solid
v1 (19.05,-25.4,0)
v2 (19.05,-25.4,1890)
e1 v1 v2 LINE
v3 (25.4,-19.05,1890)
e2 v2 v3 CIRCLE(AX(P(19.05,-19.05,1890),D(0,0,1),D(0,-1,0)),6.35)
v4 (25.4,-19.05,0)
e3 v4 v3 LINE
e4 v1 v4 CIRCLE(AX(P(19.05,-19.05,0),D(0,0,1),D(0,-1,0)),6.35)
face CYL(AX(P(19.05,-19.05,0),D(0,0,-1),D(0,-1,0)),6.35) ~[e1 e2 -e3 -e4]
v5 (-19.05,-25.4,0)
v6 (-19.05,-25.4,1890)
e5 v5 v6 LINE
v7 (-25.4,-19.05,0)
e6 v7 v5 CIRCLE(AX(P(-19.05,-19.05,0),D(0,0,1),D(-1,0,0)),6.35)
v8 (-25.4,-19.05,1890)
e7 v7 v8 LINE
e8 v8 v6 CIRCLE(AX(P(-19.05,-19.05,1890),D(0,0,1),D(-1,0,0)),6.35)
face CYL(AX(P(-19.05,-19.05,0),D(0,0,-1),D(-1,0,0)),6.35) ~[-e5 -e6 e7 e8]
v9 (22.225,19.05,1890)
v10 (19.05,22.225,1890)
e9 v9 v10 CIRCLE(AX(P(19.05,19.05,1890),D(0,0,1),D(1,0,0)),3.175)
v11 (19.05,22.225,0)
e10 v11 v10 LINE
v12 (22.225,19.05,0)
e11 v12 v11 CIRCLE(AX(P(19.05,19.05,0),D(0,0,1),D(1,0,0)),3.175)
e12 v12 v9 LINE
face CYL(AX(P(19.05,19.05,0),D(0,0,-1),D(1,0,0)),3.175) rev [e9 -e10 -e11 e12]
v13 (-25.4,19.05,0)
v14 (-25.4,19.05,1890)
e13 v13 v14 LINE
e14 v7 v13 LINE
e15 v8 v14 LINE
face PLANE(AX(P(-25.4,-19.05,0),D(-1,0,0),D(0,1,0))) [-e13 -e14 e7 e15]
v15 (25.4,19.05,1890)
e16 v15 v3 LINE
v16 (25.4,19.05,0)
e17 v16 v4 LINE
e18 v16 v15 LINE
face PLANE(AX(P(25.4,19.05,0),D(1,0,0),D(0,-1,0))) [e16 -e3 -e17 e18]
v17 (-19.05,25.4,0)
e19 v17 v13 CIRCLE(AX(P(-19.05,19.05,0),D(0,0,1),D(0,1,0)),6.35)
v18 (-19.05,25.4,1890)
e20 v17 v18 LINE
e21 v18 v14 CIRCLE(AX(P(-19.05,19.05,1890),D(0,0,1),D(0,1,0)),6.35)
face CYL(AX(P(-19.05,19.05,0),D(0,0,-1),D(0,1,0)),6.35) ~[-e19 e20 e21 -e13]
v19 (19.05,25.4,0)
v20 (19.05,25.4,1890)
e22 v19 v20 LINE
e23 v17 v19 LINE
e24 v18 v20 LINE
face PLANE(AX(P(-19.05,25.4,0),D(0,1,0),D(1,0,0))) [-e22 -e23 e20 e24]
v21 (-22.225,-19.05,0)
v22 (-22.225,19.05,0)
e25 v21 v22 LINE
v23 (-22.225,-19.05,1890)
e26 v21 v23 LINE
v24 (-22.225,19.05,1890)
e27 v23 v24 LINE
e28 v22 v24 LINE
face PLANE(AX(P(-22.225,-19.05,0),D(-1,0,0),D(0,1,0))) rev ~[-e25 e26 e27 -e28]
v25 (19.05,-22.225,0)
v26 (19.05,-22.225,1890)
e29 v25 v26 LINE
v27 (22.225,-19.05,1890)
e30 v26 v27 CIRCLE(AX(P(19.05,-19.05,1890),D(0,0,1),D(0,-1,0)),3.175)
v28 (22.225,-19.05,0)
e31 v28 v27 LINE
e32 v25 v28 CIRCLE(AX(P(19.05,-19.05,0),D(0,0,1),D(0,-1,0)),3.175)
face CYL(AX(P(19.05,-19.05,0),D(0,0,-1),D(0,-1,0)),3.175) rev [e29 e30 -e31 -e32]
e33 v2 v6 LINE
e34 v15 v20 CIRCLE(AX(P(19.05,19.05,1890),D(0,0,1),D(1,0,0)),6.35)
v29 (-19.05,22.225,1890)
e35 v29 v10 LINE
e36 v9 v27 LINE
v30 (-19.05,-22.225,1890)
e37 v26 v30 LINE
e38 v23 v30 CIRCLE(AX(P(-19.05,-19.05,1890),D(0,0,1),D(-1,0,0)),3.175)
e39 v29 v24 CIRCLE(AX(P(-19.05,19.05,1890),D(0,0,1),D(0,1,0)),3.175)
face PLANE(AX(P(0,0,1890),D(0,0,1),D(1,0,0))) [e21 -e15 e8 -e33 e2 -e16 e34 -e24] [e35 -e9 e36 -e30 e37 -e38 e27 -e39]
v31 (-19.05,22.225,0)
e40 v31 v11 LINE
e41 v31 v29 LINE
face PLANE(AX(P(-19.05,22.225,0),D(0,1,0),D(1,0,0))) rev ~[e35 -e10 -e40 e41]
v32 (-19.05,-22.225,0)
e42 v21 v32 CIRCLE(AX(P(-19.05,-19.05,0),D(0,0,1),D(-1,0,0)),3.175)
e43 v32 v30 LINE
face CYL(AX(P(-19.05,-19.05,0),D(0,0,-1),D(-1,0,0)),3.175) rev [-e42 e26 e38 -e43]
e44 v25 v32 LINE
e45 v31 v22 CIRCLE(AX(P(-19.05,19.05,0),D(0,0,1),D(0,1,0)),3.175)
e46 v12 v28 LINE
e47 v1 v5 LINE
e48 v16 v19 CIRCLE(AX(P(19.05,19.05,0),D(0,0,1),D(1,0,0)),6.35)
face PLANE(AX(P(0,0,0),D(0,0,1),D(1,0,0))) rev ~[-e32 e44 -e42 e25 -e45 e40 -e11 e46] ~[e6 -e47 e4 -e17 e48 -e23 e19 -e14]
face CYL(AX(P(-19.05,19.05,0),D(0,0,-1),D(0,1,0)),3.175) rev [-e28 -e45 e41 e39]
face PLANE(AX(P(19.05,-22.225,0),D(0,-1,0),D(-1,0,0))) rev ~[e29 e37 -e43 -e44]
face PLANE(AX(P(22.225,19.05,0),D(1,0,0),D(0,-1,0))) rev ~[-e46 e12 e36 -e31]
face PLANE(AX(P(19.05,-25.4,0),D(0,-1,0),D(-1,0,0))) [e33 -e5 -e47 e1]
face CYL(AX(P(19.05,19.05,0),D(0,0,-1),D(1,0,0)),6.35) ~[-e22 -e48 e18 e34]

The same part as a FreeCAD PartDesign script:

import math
import FreeCAD as App
import Part
import Sketcher

V = App.Vector
Q = App.Units.Quantity

doc = App.newDocument("Part")
body = doc.addObject("PartDesign::Body", "Body")

sketch1 = doc.addObject("Sketcher::SketchObject", "Sketch")
body.addObject(sketch1)
sketch1.AttachmentSupport = (doc.XY_Plane, [""])
sketch1.MapMode = "FlatFace"
sketch1.addGeometry([
    Part.LineSegment(V(-25.4, 19.1, 0), V(-25.4, -19.1, 0)),
    Part.ArcOfCircle(Part.Circle(V(-19.1, -19.1, 0), V(0, 0, 1), 6.3), math.radians(180), math.radians(270)),
    Part.LineSegment(V(-19.1, -25.4, 0), V(19.1, -25.4, 0)),
    Part.ArcOfCircle(Part.Circle(V(19.1, -19.1, 0), V(0, 0, 1), 6.3), math.radians(-90), math.radians(0)),
    Part.LineSegment(V(25.4, -19.1, 0), V(25.4, 19.1, 0)),
    Part.ArcOfCircle(Part.Circle(V(19.1, 19.1, 0), V(0, 0, 1), 6.3), math.radians(0), math.radians(90)),
    Part.LineSegment(V(19.1, 25.4, 0), V(-19.1, 25.4, 0)),
    Part.ArcOfCircle(Part.Circle(V(-19.1, 19.1, 0), V(0, 0, 1), 6.3), math.radians(90), math.radians(180)),
    Part.ArcOfCircle(Part.Circle(V(-19.1, 19.1, 0), V(0, 0, 1), 3.2), math.radians(90), math.radians(180)),
    Part.LineSegment(V(-19.1, 22.2, 0), V(19.1, 22.2, 0)),
    Part.ArcOfCircle(Part.Circle(V(19.1, 19.1, 0), V(0, 0, 1), 3.2), math.radians(0), math.radians(90)),
    Part.LineSegment(V(22.2, 19.1, 0), V(22.2, -19.1, 0)),
    Part.ArcOfCircle(Part.Circle(V(19.1, -19.1, 0), V(0, 0, 1), 3.2), math.radians(-90), math.radians(0)),
    Part.LineSegment(V(19.1, -22.2, 0), V(-19.1, -22.2, 0)),
    Part.ArcOfCircle(Part.Circle(V(-19.1, -19.1, 0), V(0, 0, 1), 3.2), math.radians(180), math.radians(270)),
    Part.LineSegment(V(-22.2, -19.1, 0), V(-22.2, 19.1, 0)),
], False)
sketch1.addConstraint([
    Sketcher.Constraint("Tangent", 0, 2, 1, 1),
    Sketcher.Constraint("Tangent", 1, 2, 2, 1),
    Sketcher.Constraint("Tangent", 2, 2, 3, 1),
    Sketcher.Constraint("Tangent", 3, 2, 4, 1),
    Sketcher.Constraint("Tangent", 4, 2, 5, 1),
    Sketcher.Constraint("Tangent", 5, 2, 6, 1),
    Sketcher.Constraint("Tangent", 6, 2, 7, 1),
    Sketcher.Constraint("Tangent", 7, 2, 0, 1),
    Sketcher.Constraint("Tangent", 8, 1, 9, 1),
    Sketcher.Constraint("Tangent", 9, 2, 10, 2),
    Sketcher.Constraint("Tangent", 10, 1, 11, 1),
    Sketcher.Constraint("Tangent", 11, 2, 12, 2),
    Sketcher.Constraint("Tangent", 12, 1, 13, 1),
    Sketcher.Constraint("Tangent", 13, 2, 14, 2),
    Sketcher.Constraint("Tangent", 14, 1, 15, 1),
    Sketcher.Constraint("Tangent", 15, 2, 8, 2),
    Sketcher.Constraint("Vertical", 0),
    Sketcher.Constraint("Horizontal", 2),
    Sketcher.Constraint("Vertical", 4),
    Sketcher.Constraint("Horizontal", 6),
    Sketcher.Constraint("Horizontal", 9),
    Sketcher.Constraint("Vertical", 11),
    Sketcher.Constraint("Horizontal", 13),
    Sketcher.Constraint("Vertical", 15),
    Sketcher.Constraint("Coincident", 8, 3, 7, 3),
    Sketcher.Constraint("Coincident", 10, 3, 5, 3),
    Sketcher.Constraint("Coincident", 12, 3, 3, 3),
    Sketcher.Constraint("Equal", 1, 3),
    Sketcher.Constraint("Equal", 3, 5),
    Sketcher.Constraint("Equal", 5, 7),
    Sketcher.Constraint("Equal", 12, 14),
    Sketcher.Constraint("Symmetric", 1, 3, 5, 3, -1, 1),
    Sketcher.Constraint("Equal", 13, 0),
    Sketcher.Constraint("Radius", 1, Q("0.25 in")),
    Sketcher.Constraint("DistanceX", 0, 2, -1, 1, Q("1 in")),
    Sketcher.Constraint("Radius", 8, Q("0.125 in")),
])
pad1 = doc.addObject("PartDesign::Pad", "Pad")
body.addObject(pad1)
pad1.Profile = sketch1
pad1.Length = 1890

doc.recompute()
